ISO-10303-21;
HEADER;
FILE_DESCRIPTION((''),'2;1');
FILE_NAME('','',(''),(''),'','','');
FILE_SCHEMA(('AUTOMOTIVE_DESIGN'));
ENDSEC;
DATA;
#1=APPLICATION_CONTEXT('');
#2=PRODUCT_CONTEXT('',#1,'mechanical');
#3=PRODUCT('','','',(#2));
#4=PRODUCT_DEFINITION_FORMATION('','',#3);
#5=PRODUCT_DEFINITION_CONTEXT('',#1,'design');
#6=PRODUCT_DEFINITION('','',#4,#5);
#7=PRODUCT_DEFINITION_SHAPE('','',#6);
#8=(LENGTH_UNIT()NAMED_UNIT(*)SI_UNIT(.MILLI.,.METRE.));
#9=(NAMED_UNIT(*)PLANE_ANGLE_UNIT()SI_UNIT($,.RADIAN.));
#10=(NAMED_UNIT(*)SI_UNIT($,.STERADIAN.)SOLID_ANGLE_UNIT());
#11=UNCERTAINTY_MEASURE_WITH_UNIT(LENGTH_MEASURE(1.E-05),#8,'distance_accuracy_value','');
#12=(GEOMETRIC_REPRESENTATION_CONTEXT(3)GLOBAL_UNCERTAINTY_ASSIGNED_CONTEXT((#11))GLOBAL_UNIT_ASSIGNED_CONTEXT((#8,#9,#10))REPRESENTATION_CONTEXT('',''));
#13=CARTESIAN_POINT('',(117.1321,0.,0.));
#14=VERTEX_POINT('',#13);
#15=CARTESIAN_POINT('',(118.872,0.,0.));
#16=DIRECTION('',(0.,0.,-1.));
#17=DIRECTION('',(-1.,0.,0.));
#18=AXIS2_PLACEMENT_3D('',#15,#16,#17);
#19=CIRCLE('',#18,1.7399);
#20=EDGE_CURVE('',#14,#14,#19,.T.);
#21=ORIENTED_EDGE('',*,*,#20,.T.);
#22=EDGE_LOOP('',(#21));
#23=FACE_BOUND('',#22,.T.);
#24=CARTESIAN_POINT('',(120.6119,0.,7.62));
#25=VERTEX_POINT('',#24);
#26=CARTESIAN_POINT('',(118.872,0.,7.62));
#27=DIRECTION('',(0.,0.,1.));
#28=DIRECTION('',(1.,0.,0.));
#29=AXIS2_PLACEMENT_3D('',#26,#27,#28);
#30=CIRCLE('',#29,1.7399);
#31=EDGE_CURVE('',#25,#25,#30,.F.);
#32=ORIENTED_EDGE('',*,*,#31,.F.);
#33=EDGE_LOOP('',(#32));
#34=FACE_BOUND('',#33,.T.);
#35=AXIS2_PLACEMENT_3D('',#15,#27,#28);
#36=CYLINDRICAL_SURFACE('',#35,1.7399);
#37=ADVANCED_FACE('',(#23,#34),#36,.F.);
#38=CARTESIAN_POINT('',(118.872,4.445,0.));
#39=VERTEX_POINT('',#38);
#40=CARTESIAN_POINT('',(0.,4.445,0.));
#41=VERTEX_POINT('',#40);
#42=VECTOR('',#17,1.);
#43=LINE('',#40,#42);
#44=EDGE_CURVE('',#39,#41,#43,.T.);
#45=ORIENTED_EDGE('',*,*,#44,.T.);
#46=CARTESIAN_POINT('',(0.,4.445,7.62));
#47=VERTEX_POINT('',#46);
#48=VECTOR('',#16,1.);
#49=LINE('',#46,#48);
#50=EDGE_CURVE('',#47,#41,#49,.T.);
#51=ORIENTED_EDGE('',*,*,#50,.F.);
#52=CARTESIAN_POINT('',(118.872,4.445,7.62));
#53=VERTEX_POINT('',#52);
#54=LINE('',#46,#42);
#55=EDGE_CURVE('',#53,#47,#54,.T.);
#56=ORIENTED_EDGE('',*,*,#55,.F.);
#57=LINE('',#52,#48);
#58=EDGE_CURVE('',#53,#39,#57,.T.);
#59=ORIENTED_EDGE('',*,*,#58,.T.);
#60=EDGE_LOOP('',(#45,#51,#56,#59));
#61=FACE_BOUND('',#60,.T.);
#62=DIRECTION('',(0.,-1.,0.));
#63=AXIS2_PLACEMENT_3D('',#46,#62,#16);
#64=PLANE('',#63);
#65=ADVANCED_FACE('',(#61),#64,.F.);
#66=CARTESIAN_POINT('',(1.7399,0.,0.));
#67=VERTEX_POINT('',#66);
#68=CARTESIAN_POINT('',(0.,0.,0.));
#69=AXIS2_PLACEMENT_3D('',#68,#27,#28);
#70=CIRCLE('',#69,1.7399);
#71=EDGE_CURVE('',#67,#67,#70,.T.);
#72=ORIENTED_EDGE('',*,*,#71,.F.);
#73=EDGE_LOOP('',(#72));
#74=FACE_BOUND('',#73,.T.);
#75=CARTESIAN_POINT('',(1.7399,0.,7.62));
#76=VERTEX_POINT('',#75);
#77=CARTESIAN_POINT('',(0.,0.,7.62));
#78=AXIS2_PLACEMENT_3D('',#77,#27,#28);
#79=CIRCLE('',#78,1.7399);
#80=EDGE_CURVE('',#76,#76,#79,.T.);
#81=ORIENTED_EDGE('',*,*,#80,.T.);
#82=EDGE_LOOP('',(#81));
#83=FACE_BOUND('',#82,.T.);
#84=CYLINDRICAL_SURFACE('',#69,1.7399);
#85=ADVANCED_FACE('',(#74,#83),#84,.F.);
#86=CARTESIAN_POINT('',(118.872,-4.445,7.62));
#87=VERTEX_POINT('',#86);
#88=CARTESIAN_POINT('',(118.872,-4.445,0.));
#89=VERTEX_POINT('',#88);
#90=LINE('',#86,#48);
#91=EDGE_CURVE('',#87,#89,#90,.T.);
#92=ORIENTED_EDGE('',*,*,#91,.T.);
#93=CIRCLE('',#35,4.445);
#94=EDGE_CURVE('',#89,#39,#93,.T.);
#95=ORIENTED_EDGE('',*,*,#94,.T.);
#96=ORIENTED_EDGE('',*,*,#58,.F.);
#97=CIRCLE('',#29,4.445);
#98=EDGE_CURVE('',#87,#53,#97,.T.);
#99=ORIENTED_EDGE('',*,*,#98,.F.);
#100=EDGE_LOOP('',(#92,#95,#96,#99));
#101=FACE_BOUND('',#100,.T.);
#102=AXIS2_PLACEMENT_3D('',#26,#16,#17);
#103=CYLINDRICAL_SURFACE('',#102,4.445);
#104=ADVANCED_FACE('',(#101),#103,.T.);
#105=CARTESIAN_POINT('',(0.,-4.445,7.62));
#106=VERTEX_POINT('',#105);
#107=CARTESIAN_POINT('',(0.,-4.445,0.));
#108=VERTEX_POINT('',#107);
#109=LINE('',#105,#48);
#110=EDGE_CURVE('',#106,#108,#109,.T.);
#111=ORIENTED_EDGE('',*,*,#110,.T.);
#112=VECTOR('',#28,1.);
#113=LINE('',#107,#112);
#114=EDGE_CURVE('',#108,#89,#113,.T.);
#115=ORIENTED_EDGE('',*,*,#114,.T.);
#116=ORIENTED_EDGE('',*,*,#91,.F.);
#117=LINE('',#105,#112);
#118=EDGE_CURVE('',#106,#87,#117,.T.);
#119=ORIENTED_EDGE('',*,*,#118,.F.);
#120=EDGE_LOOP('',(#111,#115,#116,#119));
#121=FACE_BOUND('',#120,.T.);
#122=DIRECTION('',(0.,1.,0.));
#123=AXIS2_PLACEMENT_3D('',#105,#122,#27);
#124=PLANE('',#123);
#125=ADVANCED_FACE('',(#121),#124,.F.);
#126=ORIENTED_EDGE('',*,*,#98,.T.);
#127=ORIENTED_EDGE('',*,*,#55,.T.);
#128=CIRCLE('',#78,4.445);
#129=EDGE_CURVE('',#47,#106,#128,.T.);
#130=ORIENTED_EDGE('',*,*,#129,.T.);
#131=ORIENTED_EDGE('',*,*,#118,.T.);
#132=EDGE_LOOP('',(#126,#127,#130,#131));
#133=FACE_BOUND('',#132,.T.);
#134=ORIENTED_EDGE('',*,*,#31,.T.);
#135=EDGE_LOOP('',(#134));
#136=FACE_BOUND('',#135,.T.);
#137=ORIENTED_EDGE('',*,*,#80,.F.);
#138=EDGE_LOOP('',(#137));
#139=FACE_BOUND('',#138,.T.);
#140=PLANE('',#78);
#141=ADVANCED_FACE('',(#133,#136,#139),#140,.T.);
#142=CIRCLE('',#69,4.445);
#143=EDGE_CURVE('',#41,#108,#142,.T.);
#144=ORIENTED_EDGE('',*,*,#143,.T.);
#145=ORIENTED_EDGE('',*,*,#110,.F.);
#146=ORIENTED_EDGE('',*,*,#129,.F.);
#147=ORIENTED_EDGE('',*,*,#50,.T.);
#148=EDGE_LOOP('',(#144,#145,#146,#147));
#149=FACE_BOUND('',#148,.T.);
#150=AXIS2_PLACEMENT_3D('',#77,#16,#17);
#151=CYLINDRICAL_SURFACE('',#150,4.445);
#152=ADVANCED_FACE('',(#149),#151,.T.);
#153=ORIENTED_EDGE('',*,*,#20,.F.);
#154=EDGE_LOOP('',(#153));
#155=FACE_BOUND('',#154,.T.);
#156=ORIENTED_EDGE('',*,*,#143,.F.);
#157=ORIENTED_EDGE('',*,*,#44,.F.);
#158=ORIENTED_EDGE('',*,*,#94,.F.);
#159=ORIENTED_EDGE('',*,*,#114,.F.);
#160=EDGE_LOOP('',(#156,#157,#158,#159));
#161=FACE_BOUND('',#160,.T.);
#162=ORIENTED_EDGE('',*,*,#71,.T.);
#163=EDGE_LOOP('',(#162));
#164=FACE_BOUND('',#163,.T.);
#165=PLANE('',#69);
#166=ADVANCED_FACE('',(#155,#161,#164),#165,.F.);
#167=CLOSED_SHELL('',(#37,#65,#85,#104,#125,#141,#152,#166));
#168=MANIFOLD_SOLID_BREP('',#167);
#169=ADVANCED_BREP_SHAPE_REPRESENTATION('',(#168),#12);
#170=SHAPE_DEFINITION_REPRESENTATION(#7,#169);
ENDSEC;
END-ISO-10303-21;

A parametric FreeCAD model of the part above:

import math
import FreeCAD as App
import Part
import Sketcher
from FreeCAD import Vector
Q = App.Units.Quantity

doc = App.newDocument("Part")
params = doc.addObject("Spreadsheet::Sheet", "Params")
for row, (alias, value) in enumerate([
    ("sketch1_radius", "0.175 in"),
    ("sketch1_width", "4.68 in"),
    ("pad1_length", "0.3 in"),
    ("sketch2_diameter", "0.137 in"),
    ("pocket1_length", "9.62 mm"),
], start=1):
    params.set(f"A{row}", alias)
    params.set(f"B{row}", "=" + value)
    params.setAlias(f"B{row}", alias)

body = doc.addObject("PartDesign::Body", "Body")

# Sketch on XY plane
sketch1 = doc.addObject("Sketcher::SketchObject", "Sketch")
body.addObject(sketch1)
sketch1.AttachmentSupport = (doc.XY_Plane, [""])
sketch1.MapMode = "FlatFace"
sketch1.addGeometry(Part.LineSegment(Vector(118.9, 4.4, 0), Vector(0, 4.4, 0)), False)
sketch1.addGeometry(Part.ArcOfCircle(Part.Circle(Vector(0, 0, 0), Vector(0, 0, 1), 4.4), math.radians(90), math.radians(270)), False)
sketch1.addGeometry(Part.LineSegment(Vector(0, -4.4, 0), Vector(118.9, -4.4, 0)), False)
sketch1.addGeometry(Part.ArcOfCircle(Part.Circle(Vector(118.9, 0, 0), Vector(0, 0, 1), 4.4), math.radians(-90), math.radians(90)), False)
sketch1.addConstraint(Sketcher.Constraint("Tangent", 0, 2, 1, 1))
sketch1.addConstraint(Sketcher.Constraint("Tangent", 1, 2, 2, 1))
sketch1.addConstraint(Sketcher.Constraint("Tangent", 2, 2, 3, 1))
sketch1.addConstraint(Sketcher.Constraint("Tangent", 3, 2, 0, 1))
sketch1.addConstraint(Sketcher.Constraint("Horizontal", 0))
sketch1.addConstraint(Sketcher.Constraint("Horizontal", 2))
sketch1.addConstraint(Sketcher.Constraint("Coincident", 1, 3, -1, 1))
sketch1.addConstraint(Sketcher.Constraint("Radius", 1, Q("0.175 in")))
sketch1.addConstraint(Sketcher.Constraint("DistanceX", 0, 2, 0, 1, Q("4.68 in")))
sketch1.setExpression("Constraints[7]", "Params.sketch1_radius")
sketch1.setExpression("Constraints[8]", "Params.sketch1_width")
pad1 = doc.addObject("PartDesign::Pad", "Pad")
body.addObject(pad1)
pad1.Profile = sketch1
pad1.setExpression("Length", "Params.pad1_length")

# Sketch on XY plane
sketch2 = doc.addObject("Sketcher::SketchObject", "Sketch001")
body.addObject(sketch2)
sketch2.AttachmentSupport = (doc.XY_Plane, [""])
sketch2.MapMode = "FlatFace"
sketch2.AttachmentOffset = App.Placement(Vector(0, 0, -1), App.Rotation())
sketch2.addGeometry(Part.Circle(Vector(0, 0, 0), Vector(0, 0, 1), 1.7), False)
sketch2.addConstraint(Sketcher.Constraint("Coincident", 0, 3, -1, 1))
sketch2.addConstraint(Sketcher.Constraint("Diameter", 0, Q("0.137 in")))
sketch2.setExpression("Constraints[1]", "Params.sketch2_diameter")
pocket1 = doc.addObject("PartDesign::Pocket", "Pocket")
body.addObject(pocket1)
pocket1.Profile = sketch2
pocket1.setExpression("Length", "Params.pocket1_length")
pocket1.Reversed = True
doc.recompute()

datumplane = doc.addObject("PartDesign::Plane", "DatumPlane")
body.addObject(datumplane)
datumplane.AttachmentSupport = (doc.YZ_Plane, [""])
datumplane.MapMode = "FlatFace"
datumplane.AttachmentOffset = App.Placement(Vector(0, 0, 2.34 * 25.4), App.Rotation())
mirrored = doc.addObject("PartDesign::Mirrored", "Mirrored")
body.addObject(mirrored)
mirrored.Originals = [pocket1]
mirrored.MirrorPlane = (datumplane, [""])
body.Tip = mirrored

doc.recompute()
